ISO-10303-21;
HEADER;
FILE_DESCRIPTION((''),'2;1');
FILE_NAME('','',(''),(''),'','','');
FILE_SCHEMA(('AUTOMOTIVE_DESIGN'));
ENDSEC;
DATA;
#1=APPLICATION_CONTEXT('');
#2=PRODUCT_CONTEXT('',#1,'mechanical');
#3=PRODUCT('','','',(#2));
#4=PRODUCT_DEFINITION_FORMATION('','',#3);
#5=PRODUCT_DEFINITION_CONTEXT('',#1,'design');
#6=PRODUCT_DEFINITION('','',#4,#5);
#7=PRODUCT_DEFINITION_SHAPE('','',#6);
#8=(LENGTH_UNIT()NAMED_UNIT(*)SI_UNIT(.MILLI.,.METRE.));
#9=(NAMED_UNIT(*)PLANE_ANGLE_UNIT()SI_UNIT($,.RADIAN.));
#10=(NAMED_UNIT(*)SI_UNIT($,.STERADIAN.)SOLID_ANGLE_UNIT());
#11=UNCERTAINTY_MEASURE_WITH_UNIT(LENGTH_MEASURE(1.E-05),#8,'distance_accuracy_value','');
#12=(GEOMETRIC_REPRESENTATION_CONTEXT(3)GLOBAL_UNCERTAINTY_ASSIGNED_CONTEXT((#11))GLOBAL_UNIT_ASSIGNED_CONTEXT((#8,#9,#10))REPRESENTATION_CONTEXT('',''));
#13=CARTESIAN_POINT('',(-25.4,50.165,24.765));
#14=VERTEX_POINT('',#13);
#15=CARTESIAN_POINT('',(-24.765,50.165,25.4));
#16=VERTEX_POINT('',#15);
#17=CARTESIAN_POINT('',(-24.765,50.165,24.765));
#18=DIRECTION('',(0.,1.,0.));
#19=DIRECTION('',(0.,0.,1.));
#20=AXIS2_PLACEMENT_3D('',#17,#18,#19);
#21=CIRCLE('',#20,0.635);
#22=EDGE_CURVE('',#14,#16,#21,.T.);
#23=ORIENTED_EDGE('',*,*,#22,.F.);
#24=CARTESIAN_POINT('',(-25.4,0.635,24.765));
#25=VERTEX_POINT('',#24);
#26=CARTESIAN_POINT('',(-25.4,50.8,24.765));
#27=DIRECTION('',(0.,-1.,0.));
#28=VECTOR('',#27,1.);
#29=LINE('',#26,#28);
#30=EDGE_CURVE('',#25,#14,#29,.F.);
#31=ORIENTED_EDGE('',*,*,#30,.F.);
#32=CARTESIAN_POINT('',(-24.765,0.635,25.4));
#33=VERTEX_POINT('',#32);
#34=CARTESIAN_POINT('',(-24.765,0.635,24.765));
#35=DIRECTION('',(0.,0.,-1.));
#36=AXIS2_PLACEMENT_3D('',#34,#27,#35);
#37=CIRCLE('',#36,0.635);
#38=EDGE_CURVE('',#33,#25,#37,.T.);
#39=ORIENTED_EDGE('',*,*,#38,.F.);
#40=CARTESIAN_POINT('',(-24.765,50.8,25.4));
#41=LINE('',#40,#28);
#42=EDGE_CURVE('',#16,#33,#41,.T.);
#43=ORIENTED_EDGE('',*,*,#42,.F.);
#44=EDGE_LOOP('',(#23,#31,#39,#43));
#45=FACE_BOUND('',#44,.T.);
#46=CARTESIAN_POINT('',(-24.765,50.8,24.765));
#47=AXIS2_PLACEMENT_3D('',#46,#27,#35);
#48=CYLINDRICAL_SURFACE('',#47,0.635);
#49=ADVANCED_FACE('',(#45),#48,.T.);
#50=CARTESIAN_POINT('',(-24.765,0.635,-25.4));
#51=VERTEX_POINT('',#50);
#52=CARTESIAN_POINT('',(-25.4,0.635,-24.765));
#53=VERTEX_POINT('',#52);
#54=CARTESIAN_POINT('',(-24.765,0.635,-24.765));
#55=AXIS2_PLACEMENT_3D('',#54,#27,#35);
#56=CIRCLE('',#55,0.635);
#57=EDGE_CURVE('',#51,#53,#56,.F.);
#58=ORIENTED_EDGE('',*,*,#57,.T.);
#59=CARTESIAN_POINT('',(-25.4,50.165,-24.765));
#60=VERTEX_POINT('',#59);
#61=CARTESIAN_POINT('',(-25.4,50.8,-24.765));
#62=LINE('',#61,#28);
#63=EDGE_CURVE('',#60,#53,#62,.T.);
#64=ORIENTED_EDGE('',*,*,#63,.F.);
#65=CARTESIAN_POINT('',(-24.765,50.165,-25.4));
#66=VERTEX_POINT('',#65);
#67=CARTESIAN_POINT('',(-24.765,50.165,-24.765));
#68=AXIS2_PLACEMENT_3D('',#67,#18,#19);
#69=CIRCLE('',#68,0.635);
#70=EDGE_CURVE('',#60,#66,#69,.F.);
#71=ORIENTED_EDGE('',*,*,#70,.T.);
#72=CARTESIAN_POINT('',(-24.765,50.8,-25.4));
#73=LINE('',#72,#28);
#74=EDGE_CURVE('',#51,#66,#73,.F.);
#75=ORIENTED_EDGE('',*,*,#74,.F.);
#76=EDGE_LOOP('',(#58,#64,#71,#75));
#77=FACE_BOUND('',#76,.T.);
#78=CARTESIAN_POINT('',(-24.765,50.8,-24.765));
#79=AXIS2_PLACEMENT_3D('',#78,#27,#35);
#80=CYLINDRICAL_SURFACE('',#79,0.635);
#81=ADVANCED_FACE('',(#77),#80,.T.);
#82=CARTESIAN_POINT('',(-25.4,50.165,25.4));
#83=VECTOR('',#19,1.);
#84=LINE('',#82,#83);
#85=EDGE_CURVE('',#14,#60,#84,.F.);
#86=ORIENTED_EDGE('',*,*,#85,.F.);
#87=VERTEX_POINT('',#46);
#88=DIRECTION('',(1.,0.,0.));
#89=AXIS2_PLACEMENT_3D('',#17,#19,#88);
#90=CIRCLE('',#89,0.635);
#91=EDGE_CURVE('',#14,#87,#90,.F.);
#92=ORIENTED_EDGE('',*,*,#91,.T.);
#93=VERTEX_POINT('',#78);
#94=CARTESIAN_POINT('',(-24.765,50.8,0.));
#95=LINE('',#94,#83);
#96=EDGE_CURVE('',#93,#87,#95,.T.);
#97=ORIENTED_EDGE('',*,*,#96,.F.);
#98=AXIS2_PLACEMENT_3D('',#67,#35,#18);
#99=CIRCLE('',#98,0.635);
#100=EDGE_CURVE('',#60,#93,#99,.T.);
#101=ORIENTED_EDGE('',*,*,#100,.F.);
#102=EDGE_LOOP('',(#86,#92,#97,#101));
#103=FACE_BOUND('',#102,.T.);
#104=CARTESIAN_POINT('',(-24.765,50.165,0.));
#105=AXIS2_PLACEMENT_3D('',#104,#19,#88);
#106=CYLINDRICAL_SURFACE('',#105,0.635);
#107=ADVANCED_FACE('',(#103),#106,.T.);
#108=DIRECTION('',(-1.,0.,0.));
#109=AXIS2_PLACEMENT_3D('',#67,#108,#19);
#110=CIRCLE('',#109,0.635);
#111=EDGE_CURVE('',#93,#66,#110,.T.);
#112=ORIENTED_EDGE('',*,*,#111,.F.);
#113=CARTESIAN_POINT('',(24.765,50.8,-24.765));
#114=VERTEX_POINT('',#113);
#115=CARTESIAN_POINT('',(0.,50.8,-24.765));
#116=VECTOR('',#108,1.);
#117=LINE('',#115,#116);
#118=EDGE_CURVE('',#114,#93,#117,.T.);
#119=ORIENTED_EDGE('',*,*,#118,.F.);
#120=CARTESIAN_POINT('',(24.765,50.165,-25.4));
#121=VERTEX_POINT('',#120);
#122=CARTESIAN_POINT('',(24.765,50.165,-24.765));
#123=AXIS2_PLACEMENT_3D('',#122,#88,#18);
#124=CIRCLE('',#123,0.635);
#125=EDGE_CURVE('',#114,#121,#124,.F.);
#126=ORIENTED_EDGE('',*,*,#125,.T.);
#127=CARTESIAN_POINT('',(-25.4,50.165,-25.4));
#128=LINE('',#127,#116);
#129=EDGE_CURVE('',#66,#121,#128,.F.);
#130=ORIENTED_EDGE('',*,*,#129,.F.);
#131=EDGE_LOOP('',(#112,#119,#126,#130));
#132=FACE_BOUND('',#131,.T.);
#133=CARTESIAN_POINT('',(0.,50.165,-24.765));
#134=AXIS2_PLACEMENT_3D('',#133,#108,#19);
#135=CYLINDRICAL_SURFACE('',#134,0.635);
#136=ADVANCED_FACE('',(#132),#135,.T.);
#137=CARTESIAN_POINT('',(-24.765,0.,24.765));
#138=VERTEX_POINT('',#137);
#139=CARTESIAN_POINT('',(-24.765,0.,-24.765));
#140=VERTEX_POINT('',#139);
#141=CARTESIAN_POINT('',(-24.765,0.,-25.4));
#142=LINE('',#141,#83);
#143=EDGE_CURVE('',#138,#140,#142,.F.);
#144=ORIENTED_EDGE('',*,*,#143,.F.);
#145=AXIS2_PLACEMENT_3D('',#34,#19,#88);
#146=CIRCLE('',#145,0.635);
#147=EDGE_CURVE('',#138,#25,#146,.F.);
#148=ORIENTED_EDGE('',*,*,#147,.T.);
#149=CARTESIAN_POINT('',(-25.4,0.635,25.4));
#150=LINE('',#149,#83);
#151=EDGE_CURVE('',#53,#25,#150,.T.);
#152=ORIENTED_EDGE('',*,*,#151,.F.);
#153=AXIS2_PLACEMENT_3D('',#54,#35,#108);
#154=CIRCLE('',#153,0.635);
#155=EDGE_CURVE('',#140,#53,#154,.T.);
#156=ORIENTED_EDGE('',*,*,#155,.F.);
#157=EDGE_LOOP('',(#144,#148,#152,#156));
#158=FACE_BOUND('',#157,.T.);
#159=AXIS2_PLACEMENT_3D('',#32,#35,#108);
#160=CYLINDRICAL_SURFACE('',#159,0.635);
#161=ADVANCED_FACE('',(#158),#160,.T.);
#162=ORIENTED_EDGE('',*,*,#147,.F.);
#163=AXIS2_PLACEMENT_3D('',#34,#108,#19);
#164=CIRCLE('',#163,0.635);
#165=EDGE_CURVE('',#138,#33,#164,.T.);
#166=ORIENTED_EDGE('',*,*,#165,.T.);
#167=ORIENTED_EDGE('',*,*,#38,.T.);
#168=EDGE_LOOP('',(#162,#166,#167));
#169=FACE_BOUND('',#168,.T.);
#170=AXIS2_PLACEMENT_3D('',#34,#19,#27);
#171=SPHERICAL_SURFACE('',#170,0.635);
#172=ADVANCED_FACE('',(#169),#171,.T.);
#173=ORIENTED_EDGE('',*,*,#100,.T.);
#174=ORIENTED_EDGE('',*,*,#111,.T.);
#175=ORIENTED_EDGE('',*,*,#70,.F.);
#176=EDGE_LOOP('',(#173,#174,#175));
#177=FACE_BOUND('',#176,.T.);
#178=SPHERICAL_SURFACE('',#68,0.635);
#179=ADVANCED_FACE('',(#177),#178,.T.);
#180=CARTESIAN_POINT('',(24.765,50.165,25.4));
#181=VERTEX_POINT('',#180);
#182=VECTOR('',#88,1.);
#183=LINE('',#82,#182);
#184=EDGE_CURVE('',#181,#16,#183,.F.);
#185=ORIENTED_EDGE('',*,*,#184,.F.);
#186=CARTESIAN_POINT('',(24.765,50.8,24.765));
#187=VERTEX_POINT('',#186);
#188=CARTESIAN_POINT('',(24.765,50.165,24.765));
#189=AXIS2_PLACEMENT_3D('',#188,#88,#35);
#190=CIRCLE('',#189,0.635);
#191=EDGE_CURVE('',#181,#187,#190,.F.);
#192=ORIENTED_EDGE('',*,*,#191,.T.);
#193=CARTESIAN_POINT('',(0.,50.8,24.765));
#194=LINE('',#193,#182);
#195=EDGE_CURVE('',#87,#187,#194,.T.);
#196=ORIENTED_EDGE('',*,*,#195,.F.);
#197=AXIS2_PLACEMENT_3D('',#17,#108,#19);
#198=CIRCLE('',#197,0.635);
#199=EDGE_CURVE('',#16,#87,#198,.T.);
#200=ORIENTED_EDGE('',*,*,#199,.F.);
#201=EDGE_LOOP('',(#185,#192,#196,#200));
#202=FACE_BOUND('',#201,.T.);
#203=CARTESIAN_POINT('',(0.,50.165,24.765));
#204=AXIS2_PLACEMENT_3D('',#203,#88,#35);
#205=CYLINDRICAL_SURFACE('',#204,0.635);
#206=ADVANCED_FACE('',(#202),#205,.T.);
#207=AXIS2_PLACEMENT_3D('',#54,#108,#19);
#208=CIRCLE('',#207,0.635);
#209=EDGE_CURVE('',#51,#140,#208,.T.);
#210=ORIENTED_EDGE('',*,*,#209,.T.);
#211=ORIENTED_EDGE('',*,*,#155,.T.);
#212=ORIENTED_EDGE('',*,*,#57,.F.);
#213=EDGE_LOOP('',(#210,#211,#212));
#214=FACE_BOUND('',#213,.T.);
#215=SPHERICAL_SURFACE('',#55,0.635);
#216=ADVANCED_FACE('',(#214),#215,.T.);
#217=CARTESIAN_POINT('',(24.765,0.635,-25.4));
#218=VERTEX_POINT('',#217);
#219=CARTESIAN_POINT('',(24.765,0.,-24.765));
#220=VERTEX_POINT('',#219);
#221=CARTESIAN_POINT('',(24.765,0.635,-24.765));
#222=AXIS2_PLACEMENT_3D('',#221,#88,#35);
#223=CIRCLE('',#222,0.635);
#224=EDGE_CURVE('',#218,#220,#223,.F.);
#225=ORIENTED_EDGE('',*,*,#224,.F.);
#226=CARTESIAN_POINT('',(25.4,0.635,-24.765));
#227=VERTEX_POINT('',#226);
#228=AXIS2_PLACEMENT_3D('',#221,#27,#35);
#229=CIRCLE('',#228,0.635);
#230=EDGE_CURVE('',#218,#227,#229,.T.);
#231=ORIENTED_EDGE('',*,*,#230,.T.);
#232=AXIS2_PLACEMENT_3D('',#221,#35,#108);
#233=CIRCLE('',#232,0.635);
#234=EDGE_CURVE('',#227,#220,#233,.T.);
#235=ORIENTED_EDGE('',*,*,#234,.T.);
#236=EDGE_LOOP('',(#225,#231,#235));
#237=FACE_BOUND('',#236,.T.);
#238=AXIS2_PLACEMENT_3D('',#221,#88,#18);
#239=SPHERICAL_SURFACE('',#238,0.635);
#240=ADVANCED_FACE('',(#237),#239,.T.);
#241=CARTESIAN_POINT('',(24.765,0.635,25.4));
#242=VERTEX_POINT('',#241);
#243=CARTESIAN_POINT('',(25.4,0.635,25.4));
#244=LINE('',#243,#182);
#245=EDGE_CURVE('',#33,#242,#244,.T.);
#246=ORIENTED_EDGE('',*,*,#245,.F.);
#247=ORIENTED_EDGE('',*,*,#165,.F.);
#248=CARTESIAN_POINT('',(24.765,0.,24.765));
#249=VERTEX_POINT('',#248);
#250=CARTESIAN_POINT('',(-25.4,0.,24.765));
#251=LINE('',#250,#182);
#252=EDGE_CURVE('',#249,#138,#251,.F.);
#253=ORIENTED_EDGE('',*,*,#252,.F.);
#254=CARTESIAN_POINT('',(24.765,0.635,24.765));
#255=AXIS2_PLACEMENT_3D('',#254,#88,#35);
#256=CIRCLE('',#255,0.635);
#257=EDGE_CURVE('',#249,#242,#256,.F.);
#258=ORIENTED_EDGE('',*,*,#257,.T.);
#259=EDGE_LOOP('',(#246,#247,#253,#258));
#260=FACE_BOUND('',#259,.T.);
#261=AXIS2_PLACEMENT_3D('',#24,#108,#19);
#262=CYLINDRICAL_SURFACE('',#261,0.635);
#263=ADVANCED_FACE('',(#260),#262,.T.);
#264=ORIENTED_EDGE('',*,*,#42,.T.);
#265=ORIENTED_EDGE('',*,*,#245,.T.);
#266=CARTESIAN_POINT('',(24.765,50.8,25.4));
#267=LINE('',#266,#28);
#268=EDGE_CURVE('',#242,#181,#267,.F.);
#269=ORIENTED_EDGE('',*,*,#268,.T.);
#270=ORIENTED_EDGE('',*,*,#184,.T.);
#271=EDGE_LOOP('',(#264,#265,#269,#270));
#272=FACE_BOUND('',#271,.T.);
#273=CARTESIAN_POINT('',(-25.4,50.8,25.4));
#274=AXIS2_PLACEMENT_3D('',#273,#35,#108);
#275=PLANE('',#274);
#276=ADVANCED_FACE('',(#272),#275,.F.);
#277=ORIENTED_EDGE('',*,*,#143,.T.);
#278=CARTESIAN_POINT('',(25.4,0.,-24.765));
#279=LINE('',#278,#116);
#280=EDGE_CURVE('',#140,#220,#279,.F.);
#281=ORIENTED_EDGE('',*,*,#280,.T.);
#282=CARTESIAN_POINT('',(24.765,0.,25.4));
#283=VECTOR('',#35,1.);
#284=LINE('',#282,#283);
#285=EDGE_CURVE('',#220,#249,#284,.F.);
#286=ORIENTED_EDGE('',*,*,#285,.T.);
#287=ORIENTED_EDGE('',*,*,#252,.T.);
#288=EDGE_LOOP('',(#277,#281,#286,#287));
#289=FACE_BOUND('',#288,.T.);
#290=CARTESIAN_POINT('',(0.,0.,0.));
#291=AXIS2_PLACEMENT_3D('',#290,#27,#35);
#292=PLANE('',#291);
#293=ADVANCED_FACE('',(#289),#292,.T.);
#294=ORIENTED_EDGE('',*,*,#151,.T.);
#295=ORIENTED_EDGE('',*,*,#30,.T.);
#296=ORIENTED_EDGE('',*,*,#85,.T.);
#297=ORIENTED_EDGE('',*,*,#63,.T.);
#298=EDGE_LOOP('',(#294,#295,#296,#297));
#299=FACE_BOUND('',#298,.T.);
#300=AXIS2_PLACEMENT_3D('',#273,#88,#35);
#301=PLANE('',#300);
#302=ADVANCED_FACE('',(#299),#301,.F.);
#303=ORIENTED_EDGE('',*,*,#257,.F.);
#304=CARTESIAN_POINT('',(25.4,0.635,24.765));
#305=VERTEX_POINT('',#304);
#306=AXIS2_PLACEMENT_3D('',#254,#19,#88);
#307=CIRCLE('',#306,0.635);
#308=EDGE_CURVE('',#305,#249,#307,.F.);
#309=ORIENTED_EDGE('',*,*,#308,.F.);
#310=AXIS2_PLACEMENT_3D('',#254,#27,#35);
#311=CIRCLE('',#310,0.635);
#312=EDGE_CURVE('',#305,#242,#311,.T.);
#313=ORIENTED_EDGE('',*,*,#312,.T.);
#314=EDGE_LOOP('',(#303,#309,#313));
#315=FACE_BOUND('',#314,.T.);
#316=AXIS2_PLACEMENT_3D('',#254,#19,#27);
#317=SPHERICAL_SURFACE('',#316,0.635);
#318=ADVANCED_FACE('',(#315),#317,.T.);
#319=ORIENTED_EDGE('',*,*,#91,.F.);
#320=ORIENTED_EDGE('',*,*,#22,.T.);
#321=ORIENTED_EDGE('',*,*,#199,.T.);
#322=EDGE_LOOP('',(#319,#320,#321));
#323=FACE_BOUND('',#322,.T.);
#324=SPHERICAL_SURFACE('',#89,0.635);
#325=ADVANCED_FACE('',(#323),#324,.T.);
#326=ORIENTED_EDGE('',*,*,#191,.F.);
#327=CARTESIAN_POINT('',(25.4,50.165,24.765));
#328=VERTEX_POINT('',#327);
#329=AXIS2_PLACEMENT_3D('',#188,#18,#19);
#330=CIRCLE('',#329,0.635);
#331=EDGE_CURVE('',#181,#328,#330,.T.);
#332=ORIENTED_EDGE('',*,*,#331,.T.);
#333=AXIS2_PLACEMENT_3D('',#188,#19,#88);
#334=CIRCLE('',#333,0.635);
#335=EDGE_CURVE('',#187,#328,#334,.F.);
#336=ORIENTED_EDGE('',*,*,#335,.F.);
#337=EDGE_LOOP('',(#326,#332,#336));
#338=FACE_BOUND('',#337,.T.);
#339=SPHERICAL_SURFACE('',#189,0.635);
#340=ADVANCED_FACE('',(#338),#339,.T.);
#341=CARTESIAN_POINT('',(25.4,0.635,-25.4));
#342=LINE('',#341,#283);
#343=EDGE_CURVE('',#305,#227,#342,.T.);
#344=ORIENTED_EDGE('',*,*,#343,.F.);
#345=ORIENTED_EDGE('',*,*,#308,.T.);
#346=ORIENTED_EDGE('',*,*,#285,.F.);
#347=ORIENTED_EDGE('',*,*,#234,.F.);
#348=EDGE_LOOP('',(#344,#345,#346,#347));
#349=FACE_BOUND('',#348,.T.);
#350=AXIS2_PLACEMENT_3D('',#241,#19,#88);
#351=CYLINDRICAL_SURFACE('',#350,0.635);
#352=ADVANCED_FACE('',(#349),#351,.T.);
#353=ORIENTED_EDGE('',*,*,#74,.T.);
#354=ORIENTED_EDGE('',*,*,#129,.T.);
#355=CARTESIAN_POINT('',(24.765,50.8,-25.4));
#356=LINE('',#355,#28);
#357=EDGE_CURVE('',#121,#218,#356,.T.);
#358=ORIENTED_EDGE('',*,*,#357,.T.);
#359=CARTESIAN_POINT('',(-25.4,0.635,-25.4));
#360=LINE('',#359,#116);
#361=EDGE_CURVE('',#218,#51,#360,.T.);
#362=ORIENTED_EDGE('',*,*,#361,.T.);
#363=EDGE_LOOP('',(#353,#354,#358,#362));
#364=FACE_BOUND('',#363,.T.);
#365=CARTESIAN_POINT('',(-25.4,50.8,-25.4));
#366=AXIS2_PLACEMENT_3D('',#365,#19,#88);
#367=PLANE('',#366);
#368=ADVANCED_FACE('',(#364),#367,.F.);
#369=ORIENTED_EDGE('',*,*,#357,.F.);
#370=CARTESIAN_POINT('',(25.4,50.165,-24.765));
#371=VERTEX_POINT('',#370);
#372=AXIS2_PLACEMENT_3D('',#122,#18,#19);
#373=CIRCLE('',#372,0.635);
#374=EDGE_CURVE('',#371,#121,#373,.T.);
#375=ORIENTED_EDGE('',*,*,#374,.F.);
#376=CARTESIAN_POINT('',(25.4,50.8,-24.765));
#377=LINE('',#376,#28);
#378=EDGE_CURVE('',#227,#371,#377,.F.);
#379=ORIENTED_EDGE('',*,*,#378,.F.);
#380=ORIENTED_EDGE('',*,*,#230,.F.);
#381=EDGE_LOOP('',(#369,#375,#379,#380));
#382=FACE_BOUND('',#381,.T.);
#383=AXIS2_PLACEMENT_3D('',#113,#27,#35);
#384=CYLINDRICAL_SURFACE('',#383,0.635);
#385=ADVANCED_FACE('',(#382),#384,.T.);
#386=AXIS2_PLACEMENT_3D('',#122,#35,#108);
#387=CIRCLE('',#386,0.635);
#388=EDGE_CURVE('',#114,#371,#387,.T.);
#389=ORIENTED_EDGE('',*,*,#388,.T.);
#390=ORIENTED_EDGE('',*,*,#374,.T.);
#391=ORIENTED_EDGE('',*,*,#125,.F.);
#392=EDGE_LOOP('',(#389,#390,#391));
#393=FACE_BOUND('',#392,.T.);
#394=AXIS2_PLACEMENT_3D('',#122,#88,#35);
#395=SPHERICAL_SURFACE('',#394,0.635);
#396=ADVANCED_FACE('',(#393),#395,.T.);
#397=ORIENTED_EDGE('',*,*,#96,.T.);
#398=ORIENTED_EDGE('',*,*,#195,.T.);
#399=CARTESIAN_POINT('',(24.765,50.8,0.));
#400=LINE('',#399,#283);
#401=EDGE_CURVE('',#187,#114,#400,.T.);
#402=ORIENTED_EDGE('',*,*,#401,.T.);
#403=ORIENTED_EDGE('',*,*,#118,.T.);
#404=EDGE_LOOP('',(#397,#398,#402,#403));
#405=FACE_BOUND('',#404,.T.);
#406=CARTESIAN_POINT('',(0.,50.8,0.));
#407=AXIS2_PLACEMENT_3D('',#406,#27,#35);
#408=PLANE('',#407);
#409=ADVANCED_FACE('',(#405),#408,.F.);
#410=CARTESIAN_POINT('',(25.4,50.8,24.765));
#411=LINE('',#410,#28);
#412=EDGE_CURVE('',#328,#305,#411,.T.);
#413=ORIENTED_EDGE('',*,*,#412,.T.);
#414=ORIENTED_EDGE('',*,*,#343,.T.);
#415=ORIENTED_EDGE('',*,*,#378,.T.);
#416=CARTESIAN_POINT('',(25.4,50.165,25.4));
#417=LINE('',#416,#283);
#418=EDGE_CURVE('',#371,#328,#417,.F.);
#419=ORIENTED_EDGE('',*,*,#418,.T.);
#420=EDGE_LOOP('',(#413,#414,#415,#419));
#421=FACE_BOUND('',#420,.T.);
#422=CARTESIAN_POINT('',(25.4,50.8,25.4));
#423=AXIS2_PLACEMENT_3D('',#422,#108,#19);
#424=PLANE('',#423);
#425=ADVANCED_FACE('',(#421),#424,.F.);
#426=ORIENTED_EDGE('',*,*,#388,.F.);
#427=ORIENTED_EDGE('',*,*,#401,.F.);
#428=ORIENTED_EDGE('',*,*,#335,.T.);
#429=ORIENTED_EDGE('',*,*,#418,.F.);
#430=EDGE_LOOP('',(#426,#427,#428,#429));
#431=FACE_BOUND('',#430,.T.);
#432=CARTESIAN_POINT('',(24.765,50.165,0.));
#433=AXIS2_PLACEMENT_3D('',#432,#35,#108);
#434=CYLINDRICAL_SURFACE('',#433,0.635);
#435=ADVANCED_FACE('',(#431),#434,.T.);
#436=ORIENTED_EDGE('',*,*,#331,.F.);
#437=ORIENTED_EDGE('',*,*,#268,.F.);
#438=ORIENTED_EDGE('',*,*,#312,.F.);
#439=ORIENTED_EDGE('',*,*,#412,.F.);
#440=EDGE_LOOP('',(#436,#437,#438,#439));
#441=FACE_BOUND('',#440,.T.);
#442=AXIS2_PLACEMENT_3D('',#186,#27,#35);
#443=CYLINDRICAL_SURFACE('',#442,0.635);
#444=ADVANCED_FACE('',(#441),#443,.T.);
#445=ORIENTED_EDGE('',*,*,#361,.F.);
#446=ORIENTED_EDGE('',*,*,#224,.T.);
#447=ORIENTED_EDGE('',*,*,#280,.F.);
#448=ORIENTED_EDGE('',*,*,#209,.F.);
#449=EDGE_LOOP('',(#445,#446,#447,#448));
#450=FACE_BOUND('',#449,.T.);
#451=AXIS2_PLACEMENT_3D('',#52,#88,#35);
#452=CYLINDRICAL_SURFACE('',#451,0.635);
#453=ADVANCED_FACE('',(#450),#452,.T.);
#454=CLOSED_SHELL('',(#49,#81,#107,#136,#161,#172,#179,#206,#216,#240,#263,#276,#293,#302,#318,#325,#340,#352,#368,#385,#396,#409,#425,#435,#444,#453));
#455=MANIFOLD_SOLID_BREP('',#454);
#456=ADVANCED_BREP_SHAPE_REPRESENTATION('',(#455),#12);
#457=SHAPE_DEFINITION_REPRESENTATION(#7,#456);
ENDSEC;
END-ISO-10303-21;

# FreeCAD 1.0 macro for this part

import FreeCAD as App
import Part
import Sketcher
from FreeCAD import Vector
Q = App.Units.Quantity


def add_polygon(sketch, points):
    """Adds a closed chain of lines whose ends are joined by coincident constraints."""
    first, n = sketch.GeometryCount, len(points)
    for a, b in zip(points, points[1:] + points[:1]):
        sketch.addGeometry(Part.LineSegment(App.Vector(*a, 0), App.Vector(*b, 0)), False)
    for i in range(n):
        sketch.addConstraint(Sketcher.Constraint("Coincident", first + i, 2, first + (i + 1) % n, 1))

doc = App.newDocument("Part")
params = doc.addObject("Spreadsheet::Sheet", "Params")
for row, (alias, value) in enumerate([
    ("sketch1_width", "2 in"),
    ("pad1_length", "2 in"),
    ("fillet_radius", "0.025 in"),
], start=1):
    params.set(f"A{row}", alias)
    params.set(f"B{row}", "=" + value)
    params.setAlias(f"B{row}", alias)

body = doc.addObject("PartDesign::Body", "Body")

sketch1 = body.newObject("Sketcher::SketchObject", "Sketch")
sketch1.AttachmentSupport = (doc.getObject("XZ_Plane"), [""])
sketch1.MapMode = "FlatFace"
add_polygon(sketch1, [(-25, -25), (-25, 25), (25, 25), (25, -25)])
sketch1.addConstraint([
    Sketcher.Constraint("Vertical", 0),
    Sketcher.Constraint("Horizontal", 1),
    Sketcher.Constraint("Vertical", 2),
    Sketcher.Constraint("Horizontal", 3),
    Sketcher.Constraint("Symmetric", 0, 2, 2, 2, -1, 1),
    Sketcher.Constraint("Equal", 3, 0),
    Sketcher.Constraint("DistanceX", 1, 1, 1, 2, Q("2 in")),
])
sketch1.setExpression("Constraints[10]", "Params.sketch1_width")
pad1 = body.newObject("PartDesign::Pad", "Pad")
pad1.Profile = sketch1
pad1.setExpression("Length", "Params.pad1_length")
pad1.Reversed = True
doc.recompute()

fillet = body.newObject("PartDesign::Fillet", "Fillet")
fillet.Base = (pad1, ["Edge1"])
fillet.UseAllEdges = True
fillet.setExpression("Radius", "Params.fillet_radius")

doc.recompute()
